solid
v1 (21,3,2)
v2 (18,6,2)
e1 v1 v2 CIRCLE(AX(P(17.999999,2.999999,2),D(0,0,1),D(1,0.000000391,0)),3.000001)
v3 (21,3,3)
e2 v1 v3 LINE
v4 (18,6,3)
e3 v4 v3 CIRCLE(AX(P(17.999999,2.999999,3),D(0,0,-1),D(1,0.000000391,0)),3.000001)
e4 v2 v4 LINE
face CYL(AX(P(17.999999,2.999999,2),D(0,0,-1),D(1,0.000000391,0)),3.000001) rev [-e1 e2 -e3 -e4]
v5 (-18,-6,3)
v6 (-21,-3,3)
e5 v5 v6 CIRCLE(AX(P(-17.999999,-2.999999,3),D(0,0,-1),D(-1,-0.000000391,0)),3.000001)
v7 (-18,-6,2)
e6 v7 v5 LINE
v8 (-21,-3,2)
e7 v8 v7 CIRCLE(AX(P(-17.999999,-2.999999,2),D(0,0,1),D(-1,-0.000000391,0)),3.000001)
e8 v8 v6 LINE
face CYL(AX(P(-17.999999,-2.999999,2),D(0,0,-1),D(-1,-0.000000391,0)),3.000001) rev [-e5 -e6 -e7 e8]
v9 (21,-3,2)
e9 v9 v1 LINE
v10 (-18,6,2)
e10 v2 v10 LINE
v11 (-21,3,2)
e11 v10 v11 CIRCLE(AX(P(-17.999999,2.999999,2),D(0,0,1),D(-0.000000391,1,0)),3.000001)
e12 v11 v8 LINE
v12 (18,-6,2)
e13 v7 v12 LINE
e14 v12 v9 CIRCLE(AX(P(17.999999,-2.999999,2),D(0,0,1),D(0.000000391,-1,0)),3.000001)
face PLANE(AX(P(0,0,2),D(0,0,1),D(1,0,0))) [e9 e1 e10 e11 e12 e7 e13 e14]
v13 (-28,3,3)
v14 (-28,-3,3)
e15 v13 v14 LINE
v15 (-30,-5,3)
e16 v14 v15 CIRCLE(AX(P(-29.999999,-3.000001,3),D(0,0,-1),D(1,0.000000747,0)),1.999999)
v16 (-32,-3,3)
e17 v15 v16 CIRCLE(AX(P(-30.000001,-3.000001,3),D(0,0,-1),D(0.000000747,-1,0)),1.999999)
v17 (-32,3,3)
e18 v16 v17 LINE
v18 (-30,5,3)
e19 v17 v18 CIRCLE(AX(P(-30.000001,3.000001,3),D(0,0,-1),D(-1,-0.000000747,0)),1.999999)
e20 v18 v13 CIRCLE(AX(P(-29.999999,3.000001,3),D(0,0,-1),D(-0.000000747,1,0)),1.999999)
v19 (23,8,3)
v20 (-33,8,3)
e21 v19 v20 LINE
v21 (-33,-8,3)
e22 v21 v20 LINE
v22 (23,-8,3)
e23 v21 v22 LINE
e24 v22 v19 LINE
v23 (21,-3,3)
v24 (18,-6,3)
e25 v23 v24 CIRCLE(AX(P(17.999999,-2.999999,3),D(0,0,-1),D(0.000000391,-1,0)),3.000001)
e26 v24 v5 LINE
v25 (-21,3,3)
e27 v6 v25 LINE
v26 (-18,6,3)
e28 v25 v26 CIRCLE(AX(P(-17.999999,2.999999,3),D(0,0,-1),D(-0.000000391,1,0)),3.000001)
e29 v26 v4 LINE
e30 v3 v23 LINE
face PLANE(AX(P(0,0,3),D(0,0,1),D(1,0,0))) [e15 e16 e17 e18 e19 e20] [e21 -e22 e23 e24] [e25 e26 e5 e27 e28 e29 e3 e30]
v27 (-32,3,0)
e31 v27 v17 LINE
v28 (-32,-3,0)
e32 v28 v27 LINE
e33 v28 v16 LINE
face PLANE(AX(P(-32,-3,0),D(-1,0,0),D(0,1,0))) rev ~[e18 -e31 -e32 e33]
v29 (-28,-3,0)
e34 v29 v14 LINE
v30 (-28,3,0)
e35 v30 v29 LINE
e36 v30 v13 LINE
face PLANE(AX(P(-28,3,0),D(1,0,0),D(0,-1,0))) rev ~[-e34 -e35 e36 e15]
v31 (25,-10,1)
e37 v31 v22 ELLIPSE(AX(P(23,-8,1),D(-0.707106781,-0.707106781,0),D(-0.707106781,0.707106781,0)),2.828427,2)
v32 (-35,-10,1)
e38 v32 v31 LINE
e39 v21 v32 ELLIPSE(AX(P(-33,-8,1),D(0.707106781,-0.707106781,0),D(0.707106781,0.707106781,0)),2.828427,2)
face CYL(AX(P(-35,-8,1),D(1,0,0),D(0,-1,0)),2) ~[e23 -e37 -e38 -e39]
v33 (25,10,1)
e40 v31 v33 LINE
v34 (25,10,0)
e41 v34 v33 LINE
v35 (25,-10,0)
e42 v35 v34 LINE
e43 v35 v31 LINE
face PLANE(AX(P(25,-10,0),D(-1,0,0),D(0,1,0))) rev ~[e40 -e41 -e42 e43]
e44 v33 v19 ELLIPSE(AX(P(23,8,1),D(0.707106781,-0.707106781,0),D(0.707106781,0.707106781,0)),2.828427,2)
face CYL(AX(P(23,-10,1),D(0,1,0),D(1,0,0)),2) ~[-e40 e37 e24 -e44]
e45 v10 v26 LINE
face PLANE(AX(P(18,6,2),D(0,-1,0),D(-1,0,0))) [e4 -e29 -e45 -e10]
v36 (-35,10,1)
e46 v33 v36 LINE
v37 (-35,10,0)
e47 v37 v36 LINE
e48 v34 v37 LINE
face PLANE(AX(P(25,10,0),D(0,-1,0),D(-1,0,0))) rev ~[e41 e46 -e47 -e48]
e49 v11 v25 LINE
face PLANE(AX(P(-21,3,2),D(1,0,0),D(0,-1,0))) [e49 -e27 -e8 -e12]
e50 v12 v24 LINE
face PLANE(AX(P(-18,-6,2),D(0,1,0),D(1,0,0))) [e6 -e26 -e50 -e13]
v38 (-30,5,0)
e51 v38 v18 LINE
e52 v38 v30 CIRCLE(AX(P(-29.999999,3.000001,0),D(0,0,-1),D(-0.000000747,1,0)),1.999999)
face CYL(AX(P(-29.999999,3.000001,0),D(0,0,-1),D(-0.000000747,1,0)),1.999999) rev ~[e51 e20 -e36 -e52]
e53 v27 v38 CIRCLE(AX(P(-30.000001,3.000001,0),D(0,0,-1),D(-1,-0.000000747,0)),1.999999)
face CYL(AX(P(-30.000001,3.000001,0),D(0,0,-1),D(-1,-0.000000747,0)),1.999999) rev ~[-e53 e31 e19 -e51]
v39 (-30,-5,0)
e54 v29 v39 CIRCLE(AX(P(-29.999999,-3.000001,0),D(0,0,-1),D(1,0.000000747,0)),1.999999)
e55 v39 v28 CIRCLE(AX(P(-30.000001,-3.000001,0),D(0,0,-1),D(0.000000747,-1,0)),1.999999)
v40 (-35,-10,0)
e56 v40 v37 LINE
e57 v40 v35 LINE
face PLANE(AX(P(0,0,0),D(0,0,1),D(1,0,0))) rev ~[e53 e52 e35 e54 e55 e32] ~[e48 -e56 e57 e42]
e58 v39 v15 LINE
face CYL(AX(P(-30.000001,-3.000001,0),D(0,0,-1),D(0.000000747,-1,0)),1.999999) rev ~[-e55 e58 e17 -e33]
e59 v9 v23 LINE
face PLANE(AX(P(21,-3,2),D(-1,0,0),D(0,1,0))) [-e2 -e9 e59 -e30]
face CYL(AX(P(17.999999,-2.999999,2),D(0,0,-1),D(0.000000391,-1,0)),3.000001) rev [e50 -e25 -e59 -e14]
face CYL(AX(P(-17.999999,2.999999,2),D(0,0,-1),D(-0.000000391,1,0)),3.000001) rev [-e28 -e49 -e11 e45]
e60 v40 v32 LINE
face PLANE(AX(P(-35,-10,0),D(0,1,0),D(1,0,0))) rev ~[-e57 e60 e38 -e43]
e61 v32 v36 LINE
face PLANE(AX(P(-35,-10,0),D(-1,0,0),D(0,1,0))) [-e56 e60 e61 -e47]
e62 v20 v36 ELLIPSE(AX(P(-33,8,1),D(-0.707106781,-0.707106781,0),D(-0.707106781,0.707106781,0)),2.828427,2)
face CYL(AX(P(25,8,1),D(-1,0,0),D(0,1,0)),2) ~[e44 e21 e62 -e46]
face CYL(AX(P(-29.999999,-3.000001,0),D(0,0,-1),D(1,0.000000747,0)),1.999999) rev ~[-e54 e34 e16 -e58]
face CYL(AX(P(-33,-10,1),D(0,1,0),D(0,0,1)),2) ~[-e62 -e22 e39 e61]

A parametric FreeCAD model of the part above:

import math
import FreeCAD as App
import Part
import Sketcher
from FreeCAD import Vector


def edges_at(feature, points):
    """Names of the edges that pass closest to the given points."""
    edges = feature.Shape.Edges
    near = lambda p: min(range(len(edges)), key=lambda i: edges[i].distToShape(Part.Vertex(*p))[0])
    return sorted({f"Edge{near(p) + 1}" for p in points})

doc = App.newDocument("Part")
body = doc.addObject("PartDesign::Body", "Body")

sketch1 = doc.addObject("Sketcher::SketchObject", "Sketch")
body.addObject(sketch1)
sketch1.AttachmentSupport = (doc.XY_Plane, [""])
sketch1.MapMode = "FlatFace"
sketch1.addGeometry(Part.LineSegment(Vector(25, -10, 0), Vector(25, 10, 0)), False)
sketch1.addGeometry(Part.LineSegment(Vector(25, 10, 0), Vector(-35, 10, 0)), False)
sketch1.addGeometry(Part.LineSegment(Vector(-35, 10, 0), Vector(-35, -10, 0)), False)
sketch1.addGeometry(Part.LineSegment(Vector(-35, -10, 0), Vector(25, -10, 0)), False)
sketch1.addGeometry(Part.ArcOfCircle(Part.Circle(Vector(-30, 3, 0), Vector(0, 0, 1), 2), math.radians(90), math.radians(180)), False)
sketch1.addGeometry(Part.ArcOfCircle(Part.Circle(Vector(-30, 3, 0), Vector(0, 0, 1), 2), math.radians(0), math.radians(90)), False)
sketch1.addGeometry(Part.LineSegment(Vector(-28, 3, 0), Vector(-28, -3, 0)), False)
sketch1.addGeometry(Part.ArcOfCircle(Part.Circle(Vector(-30, -3, 0), Vector(0, 0, 1), 2), math.radians(-90), math.radians(0)), False)
sketch1.addGeometry(Part.ArcOfCircle(Part.Circle(Vector(-30, -3, 0), Vector(0, 0, 1), 2), math.radians(180), math.radians(270)), False)
sketch1.addGeometry(Part.LineSegment(Vector(-32, -3, 0), Vector(-32, 3, 0)), False)
sketch1.addConstraint(Sketcher.Constraint("Coincident", 0, 2, 1, 1))
sketch1.addConstraint(Sketcher.Constraint("Coincident", 1, 2, 2, 1))
sketch1.addConstraint(Sketcher.Constraint("Coincident", 2, 2, 3, 1))
sketch1.addConstraint(Sketcher.Constraint("Coincident", 3, 2, 0, 1))
sketch1.addConstraint(Sketcher.Constraint("Tangent", 4, 1, 5, 2))
sketch1.addConstraint(Sketcher.Constraint("Tangent", 5, 1, 6, 1))
sketch1.addConstraint(Sketcher.Constraint("Tangent", 6, 2, 7, 2))
sketch1.addConstraint(Sketcher.Constraint("Tangent", 7, 1, 8, 2))
sketch1.addConstraint(Sketcher.Constraint("Tangent", 8, 1, 9, 1))
sketch1.addConstraint(Sketcher.Constraint("Tangent", 9, 2, 4, 2))
sketch1.addConstraint(Sketcher.Constraint("Vertical", 0))
sketch1.addConstraint(Sketcher.Constraint("Horizontal", 1))
sketch1.addConstraint(Sketcher.Constraint("Vertical", 2))
sketch1.addConstraint(Sketcher.Constraint("Horizontal", 3))
sketch1.addConstraint(Sketcher.Constraint("Vertical", 6))
sketch1.addConstraint(Sketcher.Constraint("Vertical", 9))
sketch1.addConstraint(Sketcher.Constraint("Equal", 4, 5))
sketch1.addConstraint(Sketcher.Constraint("Equal", 5, 7))
sketch1.addConstraint(Sketcher.Constraint("Symmetric", 4, 1, 7, 1, -1))
sketch1.addConstraint(Sketcher.Constraint("Vertical", 8, 3, 4, 1))
sketch1.addConstraint(Sketcher.Constraint("Radius", 4, 1.999999))
sketch1.addConstraint(Sketcher.Constraint("DistanceX", 1, 2, 1, 1, 60.0))
sketch1.addConstraint(Sketcher.Constraint("DistanceY", 0, 1, 0, 2, 20.0))
sketch1.addConstraint(Sketcher.Constraint("DistanceY", 6, 2, 6, 1, 6.0))
sketch1.addConstraint(Sketcher.Constraint("DistanceX", 4, 3, -1, 1, 30.000001))
sketch1.addConstraint(Sketcher.Constraint("DistanceX", -1, 1, 0, 2, 25.0))
sketch1.addConstraint(Sketcher.Constraint("DistanceY", -1, 1, 0, 2, 10.0))
pad1 = doc.addObject("PartDesign::Pad", "Pad")
body.addObject(pad1)
pad1.Profile = sketch1
pad1.Length = 3
body2 = doc.addObject("PartDesign::Body", "Body001")

sketch2 = doc.addObject("Sketcher::SketchObject", "Sketch001")
body2.addObject(sketch2)
sketch2.AttachmentSupport = (doc.getObject("XY_Plane001"), [""])
sketch2.MapMode = "FlatFace"
sketch2.addGeometry(Part.LineSegment(Vector(-18, -6, 0), Vector(18, -6, 0)), False)
sketch2.addGeometry(Part.ArcOfCircle(Part.Circle(Vector(18, -3, 0), Vector(0, 0, 1), 3), math.radians(-90), math.radians(0)), False)
sketch2.addGeometry(Part.LineSegment(Vector(21, -3, 0), Vector(21, 3, 0)), False)
sketch2.addGeometry(Part.ArcOfCircle(Part.Circle(Vector(18, 3, 0), Vector(0, 0, 1), 3), math.radians(0), math.radians(90)), False)
sketch2.addGeometry(Part.LineSegment(Vector(18, 6, 0), Vector(-18, 6, 0)), False)
sketch2.addGeometry(Part.ArcOfCircle(Part.Circle(Vector(-18, 3, 0), Vector(0, 0, 1), 3), math.radians(90), math.radians(180)), False)
sketch2.addGeometry(Part.LineSegment(Vector(-21, 3, 0), Vector(-21, -3, 0)), False)
sketch2.addGeometry(Part.ArcOfCircle(Part.Circle(Vector(-18, -3, 0), Vector(0, 0, 1), 3), math.radians(-180), math.radians(-90)), False)
sketch2.addConstraint(Sketcher.Constraint("Tangent", 0, 2, 1, 1))
sketch2.addConstraint(Sketcher.Constraint("Tangent", 1, 2, 2, 1))
sketch2.addConstraint(Sketcher.Constraint("Tangent", 2, 2, 3, 1))
sketch2.addConstraint(Sketcher.Constraint("Tangent", 3, 2, 4, 1))
sketch2.addConstraint(Sketcher.Constraint("Tangent", 4, 2, 5, 1))
sketch2.addConstraint(Sketcher.Constraint("Tangent", 5, 2, 6, 1))
sketch2.addConstraint(Sketcher.Constraint("Tangent", 6, 2, 7, 1))
sketch2.addConstraint(Sketcher.Constraint("Tangent", 7, 2, 0, 1))
sketch2.addConstraint(Sketcher.Constraint("Horizontal", 0))
sketch2.addConstraint(Sketcher.Constraint("Vertical", 2))
sketch2.addConstraint(Sketcher.Constraint("Horizontal", 4))
sketch2.addConstraint(Sketcher.Constraint("Vertical", 6))
sketch2.addConstraint(Sketcher.Constraint("Equal", 1, 3))
sketch2.addConstraint(Sketcher.Constraint("Equal", 3, 5))
sketch2.addConstraint(Sketcher.Constraint("Equal", 5, 7))
sketch2.addConstraint(Sketcher.Constraint("Symmetric", 1, 3, 5, 3, -1, 1))
sketch2.addConstraint(Sketcher.Constraint("Radius", 1, 3.000001))
sketch2.addConstraint(Sketcher.Constraint("DistanceX", 0, 1, 0, 2, 36.0))
sketch2.addConstraint(Sketcher.Constraint("DistanceY", 2, 1, 2, 2, 6.0))
pad2 = doc.addObject("PartDesign::Pad", "Pad001")
body2.addObject(pad2)
pad2.Profile = sketch2
pad2.Length = 3
body3 = doc.addObject("PartDesign::Body", "Body002")
doc.recompute()

body2.Placement = App.Placement(Vector(0, 0, 2), App.Rotation(Vector(0, 0, 1), 0))
boolean = doc.addObject("PartDesign::Boolean", "Boolean")
body3.addObject(boolean)
boolean.Type = "Fuse"
boolean.addObjects([body2])
doc.recompute()

boolean2 = doc.addObject("PartDesign::Boolean", "Boolean001")
body.addObject(boolean2)
boolean2.Type = "Cut"
boolean2.addObjects([body3])
doc.recompute()

fillet = doc.addObject("PartDesign::Fillet", "Fillet")
body.addObject(fillet)
fillet.Base = (boolean2, edges_at(boolean2, [
    (-35, 0, 3),
    (25, 0, 3),
    (-5, 10, 3),
    (-5, -10, 3),
]))
fillet.Radius = 2

doc.recompute()
